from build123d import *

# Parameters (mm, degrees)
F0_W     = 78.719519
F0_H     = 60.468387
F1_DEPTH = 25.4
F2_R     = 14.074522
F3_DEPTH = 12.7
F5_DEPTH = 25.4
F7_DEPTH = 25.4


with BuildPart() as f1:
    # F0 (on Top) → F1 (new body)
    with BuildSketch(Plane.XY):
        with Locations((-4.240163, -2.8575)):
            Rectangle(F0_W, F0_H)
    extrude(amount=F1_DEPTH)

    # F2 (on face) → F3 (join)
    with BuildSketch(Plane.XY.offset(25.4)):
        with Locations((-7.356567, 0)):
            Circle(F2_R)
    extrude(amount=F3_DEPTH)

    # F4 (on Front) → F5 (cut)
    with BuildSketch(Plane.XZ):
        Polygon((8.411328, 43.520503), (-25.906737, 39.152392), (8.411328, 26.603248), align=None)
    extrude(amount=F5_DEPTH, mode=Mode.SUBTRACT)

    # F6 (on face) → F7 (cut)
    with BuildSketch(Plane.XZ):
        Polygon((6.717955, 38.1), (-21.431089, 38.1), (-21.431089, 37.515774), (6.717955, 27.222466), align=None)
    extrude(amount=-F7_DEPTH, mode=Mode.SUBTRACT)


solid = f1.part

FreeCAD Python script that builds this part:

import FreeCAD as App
import Part
import Sketcher

V = App.Vector
Q = App.Units.Quantity

doc = App.newDocument("Part")
body = doc.addObject("PartDesign::Body", "Body")

# Sketch on XY plane
sketch1 = body.newObject("Sketcher::SketchObject", "Sketch")
sketch1.AttachmentSupport = (doc.getObject("XY_Plane"), [""])
sketch1.MapMode = "FlatFace"
sketch1.addGeometry([
    Part.LineSegment(V(-44, 27, 0), V(-44, -33, 0)),
    Part.LineSegment(V(-44, -33, 0), V(35, -33, 0)),
    Part.LineSegment(V(35, -33, 0), V(35, 27, 0)),
    Part.LineSegment(V(35, 27, 0), V(-44, 27, 0)),
], False)
sketch1.addConstraint([
    Sketcher.Constraint("Coincident", 0, 2, 1, 1),
    Sketcher.Constraint("Coincident", 1, 2, 2, 1),
    Sketcher.Constraint("Coincident", 2, 2, 3, 1),
    Sketcher.Constraint("Coincident", 3, 2, 0, 1),
    Sketcher.Constraint("Vertical", 0),
    Sketcher.Constraint("Horizontal", 1),
    Sketcher.Constraint("Vertical", 2),
    Sketcher.Constraint("Horizontal", 3),
    Sketcher.Constraint("DistanceX", 1, 1, 1, 2, Q("78.719519 mm")),
    Sketcher.Constraint("DistanceY", 0, 2, 0, 1, Q("60.468387 mm")),
    Sketcher.Constraint("DistanceX", 0, 2, -1, 1, Q("43.599922 mm")),
    Sketcher.Constraint("DistanceY", 0, 2, -1, 1, Q("33.091693 mm")),
])
pad1 = body.newObject("PartDesign::Pad", "Pad")
pad1.Profile = sketch1
pad1.Length = Q("1 in")

# Sketch on XY plane
sketch2 = body.newObject("Sketcher::SketchObject", "Sketch001")
sketch2.AttachmentSupport = (doc.getObject("XY_Plane"), [""])
sketch2.MapMode = "FlatFace"
sketch2.AttachmentOffset = App.Placement(V(0, 0, 1 * 25.4), App.Rotation())
sketch2.addGeometry(Part.Circle(V(-7, 0, 0), V(0, 0, 1), 14), False)
sketch2.addConstraint([
    Sketcher.Constraint("PointOnObject", 0, 3, -1),
    Sketcher.Constraint("Diameter", 0, Q("28.149044 mm")),
    Sketcher.Constraint("DistanceX", 0, 3, -1, 1, Q("7.356567 mm")),
])
pad2 = body.newObject("PartDesign::Pad", "Pad001")
pad2.Profile = sketch2
pad2.Length = Q("0.5 in")

# Sketch on XZ plane
sketch3 = body.newObject("Sketcher::SketchObject", "Sketch002")
sketch3.AttachmentSupport = (doc.getObject("XZ_Plane"), [""])
sketch3.MapMode = "FlatFace"
sketch3.addGeometry([
    Part.LineSegment(V(8, 44, 0), V(-26, 39, 0)),
    Part.LineSegment(V(-26, 39, 0), V(8, 27, 0)),
    Part.LineSegment(V(8, 27, 0), V(8, 44, 0)),
], False)
sketch3.addConstraint([
    Sketcher.Constraint("Coincident", 0, 2, 1, 1),
    Sketcher.Constraint("Coincident", 1, 2, 2, 1),
    Sketcher.Constraint("Coincident", 2, 2, 0, 1),
    Sketcher.Constraint("Vertical", 2),
    Sketcher.Constraint("Distance", 0, Q("34.594942 mm")),
    Sketcher.Constraint("DistanceY", 2, 1, 2, 2, Q("16.917255 mm")),
    Sketcher.Constraint("DistanceY", -1, 1, 1, 2, Q("26.603248 mm")),
    Sketcher.Constraint("DistanceY", 0, 2, 2, 2, Q("4.368111 mm")),
    Sketcher.Constraint("DistanceX", 0, 2, -1, 1, Q("25.906737 mm")),
])
pocket1 = body.newObject("PartDesign::Pocket", "Pocket")
pocket1.Profile = sketch3
pocket1.Length = Q("1 in")
pocket1.Reversed = True

# Sketch on XZ plane
sketch4 = body.newObject("Sketcher::SketchObject", "Sketch003")
sketch4.AttachmentSupport = (doc.getObject("XZ_Plane"), [""])
sketch4.MapMode = "FlatFace"
sketch4.addGeometry([
    Part.LineSegment(V(6.7, 38.1, 0), V(-21.4, 38.1, 0)),
    Part.LineSegment(V(-21.4, 38.1, 0), V(-21.4, 37.5, 0)),
    Part.LineSegment(V(-21.4, 37.5, 0), V(6.7, 27.2, 0)),
    Part.LineSegment(V(6.7, 27.2, 0), V(6.7, 38.1, 0)),
], False)
sketch4.addConstraint([
    Sketcher.Constraint("Coincident", 0, 2, 1, 1),
    Sketcher.Constraint("Coincident", 1, 2, 2, 1),
    Sketcher.Constraint("Coincident", 2, 2, 3, 1),
    Sketcher.Constraint("Coincident", 3, 2, 0, 1),
    Sketcher.Constraint("Horizontal", 0),
    Sketcher.Constraint("Vertical", 1),
    Sketcher.Constraint("Vertical", 3),
    Sketcher.Constraint("DistanceY", -1, 1, 0, 2, Q("1.5 in")),
    Sketcher.Constraint("Distance", 2, Q("1.1800001 in")),
    Sketcher.Constraint("DistanceX", 0, 2, 0, 1, Q("28.149044 mm")),
    Sketcher.Constraint("DistanceY", 1, 2, 1, 1, Q("0.584226 mm")),
    Sketcher.Constraint("DistanceX", 0, 2, -1, 1, Q("21.431089 mm")),
])
pocket2 = body.newObject("PartDesign::Pocket", "Pocket001")
pocket2.Profile = sketch4
pocket2.Length = Q("1 in")

doc.recompute()
